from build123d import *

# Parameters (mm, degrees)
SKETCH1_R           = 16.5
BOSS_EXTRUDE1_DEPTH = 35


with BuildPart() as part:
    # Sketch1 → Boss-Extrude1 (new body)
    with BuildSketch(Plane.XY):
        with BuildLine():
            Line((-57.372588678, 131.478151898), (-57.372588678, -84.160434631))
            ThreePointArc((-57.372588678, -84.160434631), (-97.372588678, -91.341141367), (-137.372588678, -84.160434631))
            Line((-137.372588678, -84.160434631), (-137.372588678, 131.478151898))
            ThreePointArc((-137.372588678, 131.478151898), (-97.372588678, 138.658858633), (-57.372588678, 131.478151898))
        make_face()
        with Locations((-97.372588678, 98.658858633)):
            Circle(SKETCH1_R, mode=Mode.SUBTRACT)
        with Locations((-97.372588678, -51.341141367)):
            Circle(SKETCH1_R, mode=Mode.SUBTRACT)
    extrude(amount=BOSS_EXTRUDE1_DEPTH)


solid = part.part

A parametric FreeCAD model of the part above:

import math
import FreeCAD as App
import Part
import Sketcher
Q = App.Units.Quantity

doc = App.newDocument("Part")
body = doc.addObject("PartDesign::Body", "Body")

sketch1 = body.newObject("Sketcher::SketchObject", "Sketch")
sketch1.AttachmentSupport = (doc.getObject("XY_Plane"), [""])
sketch1.MapMode = "FlatFace"
sketch1.addGeometry([
    Part.LineSegment(App.Vector(-57, -84, 0), App.Vector(-57, 131, 0)),
    Part.ArcOfCircle(Part.Circle(App.Vector(-97, 24, 0), App.Vector(0, 0, 1), 115), math.radians(70), math.radians(110)),
    Part.LineSegment(App.Vector(-137, 131, 0), App.Vector(-137, -84, 0)),
    Part.ArcOfCircle(Part.Circle(App.Vector(-97, 24, 0), App.Vector(0, 0, 1), 115), math.radians(-110), math.radians(-70)),
    Part.Circle(App.Vector(-97, -51, 0), App.Vector(0, 0, 1), 16),
    Part.Circle(App.Vector(-97, 99, 0), App.Vector(0, 0, 1), 16),
], False)
sketch1.addConstraint([
    Sketcher.Constraint("Coincident", 0, 2, 1, 1),
    Sketcher.Constraint("Coincident", 1, 2, 2, 1),
    Sketcher.Constraint("Coincident", 2, 2, 3, 1),
    Sketcher.Constraint("Coincident", 3, 2, 0, 1),
    Sketcher.Constraint("Vertical", 0),
    Sketcher.Constraint("Vertical", 2),
    Sketcher.Constraint("Coincident", 3, 3, 1, 3),
    Sketcher.Constraint("Equal", 1, 3),
    Sketcher.Constraint("Equal", 4, 5),
    Sketcher.Constraint("Horizontal", 0, 2, 1, 2),
    Sketcher.Constraint("Vertical", 3, 3, 4, 3),
    Sketcher.Constraint("Vertical", 4, 3, 5, 3),
    Sketcher.Constraint("Diameter", 4, Q("33 mm")),
    Sketcher.Constraint("Radius", 1, Q("115 mm")),
    Sketcher.Constraint("DistanceY", 4, 3, 1, 3, Q("75 mm")),
    Sketcher.Constraint("DistanceY", 3, 3, 5, 3, Q("75 mm")),
    Sketcher.Constraint("DistanceX", 5, 3, 0, 2, Q("40 mm")),
    Sketcher.Constraint("DistanceX", 1, 3, -1, 1, Q("97.372589 mm")),
    Sketcher.Constraint("DistanceY", -1, 1, 1, 3, Q("23.658859 mm")),
])
pad1 = body.newObject("PartDesign::Pad", "Pad")
pad1.Profile = sketch1
pad1.Length = 35

doc.recompute()
